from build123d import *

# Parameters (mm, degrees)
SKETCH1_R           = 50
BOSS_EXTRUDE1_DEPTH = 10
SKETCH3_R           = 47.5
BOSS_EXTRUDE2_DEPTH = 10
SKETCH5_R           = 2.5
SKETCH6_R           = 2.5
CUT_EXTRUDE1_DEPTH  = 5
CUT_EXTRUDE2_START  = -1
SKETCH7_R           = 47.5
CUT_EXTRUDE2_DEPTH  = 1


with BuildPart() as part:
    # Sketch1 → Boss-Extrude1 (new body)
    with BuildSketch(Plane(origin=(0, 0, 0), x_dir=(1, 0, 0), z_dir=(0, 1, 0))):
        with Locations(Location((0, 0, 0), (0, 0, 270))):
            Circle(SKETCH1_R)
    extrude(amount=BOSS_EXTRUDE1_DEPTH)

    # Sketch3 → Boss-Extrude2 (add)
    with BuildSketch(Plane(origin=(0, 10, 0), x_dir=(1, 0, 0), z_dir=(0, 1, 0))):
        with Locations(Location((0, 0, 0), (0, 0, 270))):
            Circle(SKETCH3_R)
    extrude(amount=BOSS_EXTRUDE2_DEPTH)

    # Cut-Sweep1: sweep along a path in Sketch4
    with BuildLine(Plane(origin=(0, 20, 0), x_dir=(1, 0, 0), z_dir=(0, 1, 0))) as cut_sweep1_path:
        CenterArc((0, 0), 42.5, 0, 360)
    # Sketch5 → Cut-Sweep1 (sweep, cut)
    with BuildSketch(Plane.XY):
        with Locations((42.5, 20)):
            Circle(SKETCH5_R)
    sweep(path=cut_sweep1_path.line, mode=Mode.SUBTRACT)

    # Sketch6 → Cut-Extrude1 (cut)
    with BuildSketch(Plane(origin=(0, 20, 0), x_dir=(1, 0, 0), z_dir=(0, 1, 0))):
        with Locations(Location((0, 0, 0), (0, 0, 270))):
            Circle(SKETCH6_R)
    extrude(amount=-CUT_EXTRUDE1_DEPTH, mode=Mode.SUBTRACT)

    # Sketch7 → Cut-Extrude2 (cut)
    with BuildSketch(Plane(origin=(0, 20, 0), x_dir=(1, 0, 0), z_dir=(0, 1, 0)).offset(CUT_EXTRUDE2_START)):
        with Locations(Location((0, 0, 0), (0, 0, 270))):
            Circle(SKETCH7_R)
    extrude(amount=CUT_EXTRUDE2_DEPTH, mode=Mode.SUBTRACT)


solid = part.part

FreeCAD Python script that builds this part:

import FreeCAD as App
import Part
import Sketcher
Q = App.Units.Quantity

doc = App.newDocument("Part")
body = doc.addObject("PartDesign::Body", "Body")

# Sketch on XZ plane
sketch1 = doc.addObject("Sketcher::SketchObject", "Sketch")
body.addObject(sketch1)
sketch1.AttachmentSupport = (doc.XZ_Plane, [""])
sketch1.MapMode = "FlatFace"
sketch1.addGeometry(Part.Circle(App.Vector(0, 0, 0), App.Vector(0, 0, 1), 50), False)
sketch1.addConstraint(Sketcher.Constraint("Coincident", 0, 3, -1, 1))
sketch1.addConstraint(Sketcher.Constraint("Diameter", 0, Q("100 mm")))
pad1 = doc.addObject("PartDesign::Pad", "Pad")
body.addObject(pad1)
pad1.Profile = sketch1
pad1.Length = 10
pad1.Reversed = True

# Sketch on XZ plane
sketch2 = doc.addObject("Sketcher::SketchObject", "Sketch001")
body.addObject(sketch2)
sketch2.AttachmentSupport = (doc.XZ_Plane, [""])
sketch2.MapMode = "FlatFace"
sketch2.AttachmentOffset = App.Placement(App.Vector(0, 0, -10), App.Rotation())
sketch2.addGeometry(Part.Circle(App.Vector(0, 0, 0), App.Vector(0, 0, 1), 48), False)
sketch2.addConstraint(Sketcher.Constraint("Coincident", 0, 3, -1, 1))
sketch2.addConstraint(Sketcher.Constraint("Diameter", 0, Q("95 mm")))
pad2 = doc.addObject("PartDesign::Pad", "Pad001")
body.addObject(pad2)
pad2.Profile = sketch2
pad2.Length = 10
pad2.Reversed = True

# Sketch on XY plane
sketch3 = doc.addObject("Sketcher::SketchObject", "Sketch002")
body.addObject(sketch3)
sketch3.AttachmentSupport = (doc.XY_Plane, [""])
sketch3.MapMode = "FlatFace"
sketch3.addGeometry(Part.Circle(App.Vector(42.5, 20, 0), App.Vector(0, 0, 1), 2.5), False)
sketch3.addConstraint(Sketcher.Constraint("Diameter", 0, Q("5 mm")))
sketch3.addConstraint(Sketcher.Constraint("DistanceY", -1, 1, 0, 3, Q("20 mm")))
sketch3.addConstraint(Sketcher.Constraint("DistanceX", -1, 1, 0, 3, Q("42.5 mm")))

# Sketch on XZ plane
sketch4 = doc.addObject("Sketcher::SketchObject", "Sketch003")
body.addObject(sketch4)
sketch4.AttachmentSupport = (doc.XZ_Plane, [""])
sketch4.MapMode = "FlatFace"
sketch4.AttachmentOffset = App.Placement(App.Vector(0, 0, -20), App.Rotation())
sketch4.addGeometry(Part.Circle(App.Vector(0, 0, 0), App.Vector(0, 0, 1), 42), False)
sketch4.addConstraint(Sketcher.Constraint("Coincident", 0, 3, -1, 1))
sketch4.addConstraint(Sketcher.Constraint("Diameter", 0, Q("85 mm")))
doc.recompute()

subtractivepipe = doc.addObject("PartDesign::SubtractivePipe", "SubtractivePipe")
body.addObject(subtractivepipe)
subtractivepipe.Profile = sketch3
subtractivepipe.Spine = (sketch4, ["Edge1"])

# Sketch on XZ plane
sketch5 = doc.addObject("Sketcher::SketchObject", "Sketch004")
body.addObject(sketch5)
sketch5.AttachmentSupport = (doc.XZ_Plane, [""])
sketch5.MapMode = "FlatFace"
sketch5.AttachmentOffset = App.Placement(App.Vector(0, 0, -20), App.Rotation())
sketch5.addGeometry(Part.Circle(App.Vector(0, 0, 0), App.Vector(0, 0, 1), 2.5), False)
sketch5.addConstraint(Sketcher.Constraint("Coincident", 0, 3, -1, 1))
sketch5.addConstraint(Sketcher.Constraint("Diameter", 0, Q("5 mm")))
pocket1 = doc.addObject("PartDesign::Pocket", "Pocket")
body.addObject(pocket1)
pocket1.Profile = sketch5
pocket1.Length = 5
pocket1.Reversed = True

# Sketch on XZ plane
sketch6 = doc.addObject("Sketcher::SketchObject", "Sketch005")
body.addObject(sketch6)
sketch6.AttachmentSupport = (doc.XZ_Plane, [""])
sketch6.MapMode = "FlatFace"
sketch6.AttachmentOffset = App.Placement(App.Vector(0, 0, -19), App.Rotation())
sketch6.addGeometry(Part.Circle(App.Vector(0, 0, 0), App.Vector(0, 0, 1), 48), False)
sketch6.addConstraint(Sketcher.Constraint("Coincident", 0, 3, -1, 1))
sketch6.addConstraint(Sketcher.Constraint("Diameter", 0, Q("95 mm")))
pocket2 = doc.addObject("PartDesign::Pocket", "Pocket001")
body.addObject(pocket2)
pocket2.Profile = sketch6
pocket2.Length = 1

doc.recompute()
